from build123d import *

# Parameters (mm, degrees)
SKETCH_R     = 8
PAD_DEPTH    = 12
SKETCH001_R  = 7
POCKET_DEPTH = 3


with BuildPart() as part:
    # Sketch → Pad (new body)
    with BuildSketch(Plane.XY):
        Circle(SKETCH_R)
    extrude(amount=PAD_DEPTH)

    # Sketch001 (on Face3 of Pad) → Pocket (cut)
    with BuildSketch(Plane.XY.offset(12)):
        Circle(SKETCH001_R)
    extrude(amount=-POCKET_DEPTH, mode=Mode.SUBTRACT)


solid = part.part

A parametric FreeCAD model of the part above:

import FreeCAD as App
import Part
import Sketcher

V = App.Vector

doc = App.newDocument("Part")
params = doc.addObject("Spreadsheet::Sheet", "Params")
for row, (alias, value) in enumerate([
    ("sketch1_diameter", "16 mm"),
    ("pad1_length", "12 mm"),
    ("sketch2_diameter", "14 mm"),
    ("pocket1_length", "3 mm"),
], start=1):
    params.set(f"A{row}", alias)
    params.set(f"B{row}", "=" + value)
    params.setAlias(f"B{row}", alias)

body = doc.addObject("PartDesign::Body", "Body")

# Sketch on XY plane
sketch1 = doc.addObject("Sketcher::SketchObject", "Sketch")
body.addObject(sketch1)
sketch1.AttachmentSupport = (doc.XY_Plane, [""])
sketch1.MapMode = "FlatFace"
sketch1.addGeometry(Part.Circle(V(0, 0, 0), V(0, 0, 1), 8), False)
sketch1.addConstraint(Sketcher.Constraint("Coincident", 0, 3, -1, 1))
sketch1.addConstraint(Sketcher.Constraint("Diameter", 0, 16.0))
sketch1.setExpression("Constraints[1]", "Params.sketch1_diameter")
pad1 = doc.addObject("PartDesign::Pad", "Pad")
body.addObject(pad1)
pad1.Profile = sketch1
pad1.setExpression("Length", "Params.pad1_length")

# Sketch on XY plane
sketch2 = doc.addObject("Sketcher::SketchObject", "Sketch001")
body.addObject(sketch2)
sketch2.AttachmentSupport = (doc.XY_Plane, [""])
sketch2.MapMode = "FlatFace"
sketch2.AttachmentOffset = App.Placement(V(0, 0, 12), App.Rotation())
sketch2.addGeometry(Part.Circle(V(0, 0, 0), V(0, 0, 1), 7), False)
sketch2.addConstraint(Sketcher.Constraint("Coincident", 0, 3, -1, 1))
sketch2.addConstraint(Sketcher.Constraint("Diameter", 0, 14.0))
sketch2.setExpression("Constraints[1]", "Params.sketch2_diameter")
pocket1 = doc.addObject("PartDesign::Pocket", "Pocket")
body.addObject(pocket1)
pocket1.Profile = sketch2
pocket1.setExpression("Length", "Params.pocket1_length")

doc.recompute()
